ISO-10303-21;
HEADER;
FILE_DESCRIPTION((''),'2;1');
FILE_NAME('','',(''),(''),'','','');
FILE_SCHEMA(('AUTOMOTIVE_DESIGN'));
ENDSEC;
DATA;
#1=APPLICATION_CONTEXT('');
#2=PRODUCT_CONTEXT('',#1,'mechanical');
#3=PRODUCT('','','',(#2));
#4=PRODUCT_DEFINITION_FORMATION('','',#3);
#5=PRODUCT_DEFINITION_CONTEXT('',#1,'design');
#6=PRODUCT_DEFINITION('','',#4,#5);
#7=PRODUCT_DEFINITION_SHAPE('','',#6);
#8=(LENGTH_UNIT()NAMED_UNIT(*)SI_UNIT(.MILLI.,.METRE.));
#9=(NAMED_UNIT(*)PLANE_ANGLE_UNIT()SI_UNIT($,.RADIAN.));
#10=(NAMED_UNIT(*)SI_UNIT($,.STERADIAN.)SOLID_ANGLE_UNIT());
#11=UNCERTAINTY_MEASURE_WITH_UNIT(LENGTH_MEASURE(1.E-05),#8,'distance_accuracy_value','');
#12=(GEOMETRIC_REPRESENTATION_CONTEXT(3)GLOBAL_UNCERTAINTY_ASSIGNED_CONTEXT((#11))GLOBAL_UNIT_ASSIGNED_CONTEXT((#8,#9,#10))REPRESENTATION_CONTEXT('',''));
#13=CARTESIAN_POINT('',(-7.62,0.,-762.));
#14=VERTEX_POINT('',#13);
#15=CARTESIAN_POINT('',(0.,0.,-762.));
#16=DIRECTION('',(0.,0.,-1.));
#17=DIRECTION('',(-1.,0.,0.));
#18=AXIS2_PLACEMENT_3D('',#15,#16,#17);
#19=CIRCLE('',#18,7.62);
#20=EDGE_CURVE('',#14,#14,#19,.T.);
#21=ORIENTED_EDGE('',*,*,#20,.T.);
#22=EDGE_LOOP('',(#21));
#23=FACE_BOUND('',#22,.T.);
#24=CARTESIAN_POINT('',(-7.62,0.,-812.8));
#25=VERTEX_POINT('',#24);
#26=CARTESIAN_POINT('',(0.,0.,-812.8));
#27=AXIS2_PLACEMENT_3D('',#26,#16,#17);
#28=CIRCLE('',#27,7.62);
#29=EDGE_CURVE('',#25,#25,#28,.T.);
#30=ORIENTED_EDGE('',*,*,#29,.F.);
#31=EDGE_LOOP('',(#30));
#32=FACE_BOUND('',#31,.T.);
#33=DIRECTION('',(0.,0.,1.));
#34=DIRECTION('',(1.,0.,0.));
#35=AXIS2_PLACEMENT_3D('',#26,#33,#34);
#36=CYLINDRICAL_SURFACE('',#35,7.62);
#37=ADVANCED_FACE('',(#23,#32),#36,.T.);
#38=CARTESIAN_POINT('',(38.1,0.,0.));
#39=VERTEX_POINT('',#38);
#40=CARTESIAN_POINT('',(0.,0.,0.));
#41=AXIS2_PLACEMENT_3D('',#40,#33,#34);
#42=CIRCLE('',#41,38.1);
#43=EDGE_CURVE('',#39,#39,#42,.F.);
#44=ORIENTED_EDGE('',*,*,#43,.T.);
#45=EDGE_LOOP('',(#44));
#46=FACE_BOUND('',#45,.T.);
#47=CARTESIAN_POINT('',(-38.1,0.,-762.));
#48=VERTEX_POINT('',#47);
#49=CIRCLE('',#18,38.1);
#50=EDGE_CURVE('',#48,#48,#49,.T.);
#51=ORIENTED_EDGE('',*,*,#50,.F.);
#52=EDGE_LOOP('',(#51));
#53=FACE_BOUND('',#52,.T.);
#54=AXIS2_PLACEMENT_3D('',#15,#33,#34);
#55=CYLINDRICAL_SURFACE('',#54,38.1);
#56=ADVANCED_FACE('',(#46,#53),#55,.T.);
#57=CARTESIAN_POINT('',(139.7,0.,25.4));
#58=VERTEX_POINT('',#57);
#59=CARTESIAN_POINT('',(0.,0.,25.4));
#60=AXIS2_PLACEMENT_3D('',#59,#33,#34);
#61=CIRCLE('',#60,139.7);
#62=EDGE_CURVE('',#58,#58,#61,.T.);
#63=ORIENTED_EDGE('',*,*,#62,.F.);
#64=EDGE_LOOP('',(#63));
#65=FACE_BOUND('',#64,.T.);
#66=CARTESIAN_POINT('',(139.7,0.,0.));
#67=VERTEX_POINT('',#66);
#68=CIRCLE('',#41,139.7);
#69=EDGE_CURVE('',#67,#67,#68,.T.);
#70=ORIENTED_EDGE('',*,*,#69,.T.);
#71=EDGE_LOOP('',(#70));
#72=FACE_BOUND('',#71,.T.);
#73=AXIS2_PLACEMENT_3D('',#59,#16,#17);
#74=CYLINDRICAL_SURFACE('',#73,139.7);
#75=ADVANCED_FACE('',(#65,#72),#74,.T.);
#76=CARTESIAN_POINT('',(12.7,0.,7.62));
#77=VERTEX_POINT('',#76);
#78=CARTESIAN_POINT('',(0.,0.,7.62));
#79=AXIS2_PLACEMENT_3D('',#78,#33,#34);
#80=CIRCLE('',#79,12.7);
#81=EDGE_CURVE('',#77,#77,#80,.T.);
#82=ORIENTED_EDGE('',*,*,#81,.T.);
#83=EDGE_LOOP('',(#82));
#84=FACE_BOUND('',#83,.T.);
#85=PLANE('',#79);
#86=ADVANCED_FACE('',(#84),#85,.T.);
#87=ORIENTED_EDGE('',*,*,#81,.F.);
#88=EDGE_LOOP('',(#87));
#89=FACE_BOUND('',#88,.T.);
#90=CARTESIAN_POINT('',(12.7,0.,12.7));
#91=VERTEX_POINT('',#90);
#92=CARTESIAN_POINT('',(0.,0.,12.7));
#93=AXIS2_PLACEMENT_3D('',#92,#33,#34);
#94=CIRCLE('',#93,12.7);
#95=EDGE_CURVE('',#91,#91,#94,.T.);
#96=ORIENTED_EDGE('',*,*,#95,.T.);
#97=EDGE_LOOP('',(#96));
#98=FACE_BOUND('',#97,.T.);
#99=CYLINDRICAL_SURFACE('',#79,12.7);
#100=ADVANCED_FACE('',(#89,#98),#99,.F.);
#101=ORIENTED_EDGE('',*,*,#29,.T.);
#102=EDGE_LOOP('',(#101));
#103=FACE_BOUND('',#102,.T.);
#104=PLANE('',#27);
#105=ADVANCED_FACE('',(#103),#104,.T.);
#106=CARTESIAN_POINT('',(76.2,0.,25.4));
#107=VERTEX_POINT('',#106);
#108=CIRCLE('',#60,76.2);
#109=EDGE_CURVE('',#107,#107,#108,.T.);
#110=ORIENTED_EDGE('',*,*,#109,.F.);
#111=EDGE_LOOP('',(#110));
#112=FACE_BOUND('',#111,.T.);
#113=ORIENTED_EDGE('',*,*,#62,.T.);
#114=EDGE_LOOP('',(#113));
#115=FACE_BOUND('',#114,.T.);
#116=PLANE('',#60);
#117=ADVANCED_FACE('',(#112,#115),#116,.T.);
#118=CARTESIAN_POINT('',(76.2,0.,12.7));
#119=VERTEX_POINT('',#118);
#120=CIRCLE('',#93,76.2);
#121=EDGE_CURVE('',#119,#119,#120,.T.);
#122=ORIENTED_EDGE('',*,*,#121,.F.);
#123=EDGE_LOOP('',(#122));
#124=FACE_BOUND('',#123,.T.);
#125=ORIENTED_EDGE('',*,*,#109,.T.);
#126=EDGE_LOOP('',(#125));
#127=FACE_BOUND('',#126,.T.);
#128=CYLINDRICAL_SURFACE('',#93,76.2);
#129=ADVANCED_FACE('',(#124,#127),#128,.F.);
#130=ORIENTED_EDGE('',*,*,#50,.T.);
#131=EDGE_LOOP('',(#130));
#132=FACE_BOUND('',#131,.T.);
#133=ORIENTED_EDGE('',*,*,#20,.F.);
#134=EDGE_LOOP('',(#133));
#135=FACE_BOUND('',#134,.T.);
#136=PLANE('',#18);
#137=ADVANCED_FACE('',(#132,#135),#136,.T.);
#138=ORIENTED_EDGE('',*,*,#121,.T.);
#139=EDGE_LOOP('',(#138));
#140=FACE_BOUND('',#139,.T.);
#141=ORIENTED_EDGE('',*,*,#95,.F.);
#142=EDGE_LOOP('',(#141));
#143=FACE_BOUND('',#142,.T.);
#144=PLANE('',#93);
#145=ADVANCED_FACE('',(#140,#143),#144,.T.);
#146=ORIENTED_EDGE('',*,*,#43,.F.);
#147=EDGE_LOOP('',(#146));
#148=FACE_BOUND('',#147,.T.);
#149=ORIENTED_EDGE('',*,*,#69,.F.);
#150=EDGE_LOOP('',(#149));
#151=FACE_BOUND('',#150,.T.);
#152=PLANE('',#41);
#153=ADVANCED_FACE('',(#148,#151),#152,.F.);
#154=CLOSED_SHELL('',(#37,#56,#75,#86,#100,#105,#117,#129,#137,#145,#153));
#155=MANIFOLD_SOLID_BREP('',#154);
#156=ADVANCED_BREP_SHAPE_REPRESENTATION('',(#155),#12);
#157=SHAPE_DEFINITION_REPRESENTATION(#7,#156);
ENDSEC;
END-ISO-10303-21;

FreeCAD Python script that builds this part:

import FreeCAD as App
import Part
import Sketcher
Q = App.Units.Quantity

doc = App.newDocument("Part")
body = doc.addObject("PartDesign::Body", "Body")

# Sketch on XY plane
sketch1 = body.newObject("Sketcher::SketchObject", "Sketch")
sketch1.AttachmentSupport = (doc.getObject("XY_Plane"), [""])
sketch1.MapMode = "FlatFace"
sketch1.addGeometry(Part.Circle(App.Vector(0, 0, 0), App.Vector(0, 0, 1), 140), False)
sketch1.addConstraint(Sketcher.Constraint("Coincident", 0, 3, -1, 1))
sketch1.addConstraint(Sketcher.Constraint("Diameter", 0, Q("11 in")))
pad1 = body.newObject("PartDesign::Pad", "Pad")
pad1.Profile = sketch1
pad1.Length = Q("1 in")

# Sketch on XY plane
sketch2 = body.newObject("Sketcher::SketchObject", "Sketch001")
sketch2.AttachmentSupport = (doc.getObject("XY_Plane"), [""])
sketch2.MapMode = "FlatFace"
sketch2.addGeometry(Part.Circle(App.Vector(0, 0, 0), App.Vector(0, 0, 1), 38), False)
sketch2.addConstraint(Sketcher.Constraint("Coincident", 0, 3, -1, 1))
sketch2.addConstraint(Sketcher.Constraint("Diameter", 0, Q("3 in")))
pad2 = body.newObject("PartDesign::Pad", "Pad001")
pad2.Profile = sketch2
pad2.Length = Q("30 in")
pad2.Reversed = True

# Sketch on XY plane
sketch3 = body.newObject("Sketcher::SketchObject", "Sketch002")
sketch3.AttachmentSupport = (doc.getObject("XY_Plane"), [""])
sketch3.MapMode = "FlatFace"
sketch3.AttachmentOffset = App.Placement(App.Vector(0, 0, -30 * 25.4), App.Rotation())
sketch3.addGeometry(Part.Circle(App.Vector(0, 0, 0), App.Vector(0, 0, 1), 8), False)
sketch3.addConstraint(Sketcher.Constraint("Coincident", 0, 3, -1, 1))
sketch3.addConstraint(Sketcher.Constraint("Diameter", 0, Q("0.6 in")))
pad3 = body.newObject("PartDesign::Pad", "Pad002")
pad3.Profile = sketch3
pad3.Length = Q("2 in")
pad3.Reversed = True

# Sketch on XY plane
sketch4 = body.newObject("Sketcher::SketchObject", "Sketch003")
sketch4.AttachmentSupport = (doc.getObject("XY_Plane"), [""])
sketch4.MapMode = "FlatFace"
sketch4.AttachmentOffset = App.Placement(App.Vector(0, 0, 1 * 25.4), App.Rotation())
sketch4.addGeometry(Part.Circle(App.Vector(0, 0, 0), App.Vector(0, 0, 1), 76), False)
sketch4.addConstraint(Sketcher.Constraint("Coincident", 0, 3, -1, 1))
sketch4.addConstraint(Sketcher.Constraint("Diameter", 0, Q("6 in")))
pocket1 = body.newObject("PartDesign::Pocket", "Pocket")
pocket1.Profile = sketch4
pocket1.Length = Q("0.5 in")

# Sketch on XY plane
sketch5 = body.newObject("Sketcher::SketchObject", "Sketch004")
sketch5.AttachmentSupport = (doc.getObject("XY_Plane"), [""])
sketch5.MapMode = "FlatFace"
sketch5.AttachmentOffset = App.Placement(App.Vector(0, 0, 0.5 * 25.4), App.Rotation())
sketch5.addGeometry(Part.Circle(App.Vector(0, 0, 0), App.Vector(0, 0, 1), 13), False)
sketch5.addConstraint(Sketcher.Constraint("Coincident", 0, 3, -1, 1))
sketch5.addConstraint(Sketcher.Constraint("Diameter", 0, Q("1 in")))
pocket2 = body.newObject("PartDesign::Pocket", "Pocket001")
pocket2.Profile = sketch5
pocket2.Length = Q("0.2 in")

doc.recompute()
